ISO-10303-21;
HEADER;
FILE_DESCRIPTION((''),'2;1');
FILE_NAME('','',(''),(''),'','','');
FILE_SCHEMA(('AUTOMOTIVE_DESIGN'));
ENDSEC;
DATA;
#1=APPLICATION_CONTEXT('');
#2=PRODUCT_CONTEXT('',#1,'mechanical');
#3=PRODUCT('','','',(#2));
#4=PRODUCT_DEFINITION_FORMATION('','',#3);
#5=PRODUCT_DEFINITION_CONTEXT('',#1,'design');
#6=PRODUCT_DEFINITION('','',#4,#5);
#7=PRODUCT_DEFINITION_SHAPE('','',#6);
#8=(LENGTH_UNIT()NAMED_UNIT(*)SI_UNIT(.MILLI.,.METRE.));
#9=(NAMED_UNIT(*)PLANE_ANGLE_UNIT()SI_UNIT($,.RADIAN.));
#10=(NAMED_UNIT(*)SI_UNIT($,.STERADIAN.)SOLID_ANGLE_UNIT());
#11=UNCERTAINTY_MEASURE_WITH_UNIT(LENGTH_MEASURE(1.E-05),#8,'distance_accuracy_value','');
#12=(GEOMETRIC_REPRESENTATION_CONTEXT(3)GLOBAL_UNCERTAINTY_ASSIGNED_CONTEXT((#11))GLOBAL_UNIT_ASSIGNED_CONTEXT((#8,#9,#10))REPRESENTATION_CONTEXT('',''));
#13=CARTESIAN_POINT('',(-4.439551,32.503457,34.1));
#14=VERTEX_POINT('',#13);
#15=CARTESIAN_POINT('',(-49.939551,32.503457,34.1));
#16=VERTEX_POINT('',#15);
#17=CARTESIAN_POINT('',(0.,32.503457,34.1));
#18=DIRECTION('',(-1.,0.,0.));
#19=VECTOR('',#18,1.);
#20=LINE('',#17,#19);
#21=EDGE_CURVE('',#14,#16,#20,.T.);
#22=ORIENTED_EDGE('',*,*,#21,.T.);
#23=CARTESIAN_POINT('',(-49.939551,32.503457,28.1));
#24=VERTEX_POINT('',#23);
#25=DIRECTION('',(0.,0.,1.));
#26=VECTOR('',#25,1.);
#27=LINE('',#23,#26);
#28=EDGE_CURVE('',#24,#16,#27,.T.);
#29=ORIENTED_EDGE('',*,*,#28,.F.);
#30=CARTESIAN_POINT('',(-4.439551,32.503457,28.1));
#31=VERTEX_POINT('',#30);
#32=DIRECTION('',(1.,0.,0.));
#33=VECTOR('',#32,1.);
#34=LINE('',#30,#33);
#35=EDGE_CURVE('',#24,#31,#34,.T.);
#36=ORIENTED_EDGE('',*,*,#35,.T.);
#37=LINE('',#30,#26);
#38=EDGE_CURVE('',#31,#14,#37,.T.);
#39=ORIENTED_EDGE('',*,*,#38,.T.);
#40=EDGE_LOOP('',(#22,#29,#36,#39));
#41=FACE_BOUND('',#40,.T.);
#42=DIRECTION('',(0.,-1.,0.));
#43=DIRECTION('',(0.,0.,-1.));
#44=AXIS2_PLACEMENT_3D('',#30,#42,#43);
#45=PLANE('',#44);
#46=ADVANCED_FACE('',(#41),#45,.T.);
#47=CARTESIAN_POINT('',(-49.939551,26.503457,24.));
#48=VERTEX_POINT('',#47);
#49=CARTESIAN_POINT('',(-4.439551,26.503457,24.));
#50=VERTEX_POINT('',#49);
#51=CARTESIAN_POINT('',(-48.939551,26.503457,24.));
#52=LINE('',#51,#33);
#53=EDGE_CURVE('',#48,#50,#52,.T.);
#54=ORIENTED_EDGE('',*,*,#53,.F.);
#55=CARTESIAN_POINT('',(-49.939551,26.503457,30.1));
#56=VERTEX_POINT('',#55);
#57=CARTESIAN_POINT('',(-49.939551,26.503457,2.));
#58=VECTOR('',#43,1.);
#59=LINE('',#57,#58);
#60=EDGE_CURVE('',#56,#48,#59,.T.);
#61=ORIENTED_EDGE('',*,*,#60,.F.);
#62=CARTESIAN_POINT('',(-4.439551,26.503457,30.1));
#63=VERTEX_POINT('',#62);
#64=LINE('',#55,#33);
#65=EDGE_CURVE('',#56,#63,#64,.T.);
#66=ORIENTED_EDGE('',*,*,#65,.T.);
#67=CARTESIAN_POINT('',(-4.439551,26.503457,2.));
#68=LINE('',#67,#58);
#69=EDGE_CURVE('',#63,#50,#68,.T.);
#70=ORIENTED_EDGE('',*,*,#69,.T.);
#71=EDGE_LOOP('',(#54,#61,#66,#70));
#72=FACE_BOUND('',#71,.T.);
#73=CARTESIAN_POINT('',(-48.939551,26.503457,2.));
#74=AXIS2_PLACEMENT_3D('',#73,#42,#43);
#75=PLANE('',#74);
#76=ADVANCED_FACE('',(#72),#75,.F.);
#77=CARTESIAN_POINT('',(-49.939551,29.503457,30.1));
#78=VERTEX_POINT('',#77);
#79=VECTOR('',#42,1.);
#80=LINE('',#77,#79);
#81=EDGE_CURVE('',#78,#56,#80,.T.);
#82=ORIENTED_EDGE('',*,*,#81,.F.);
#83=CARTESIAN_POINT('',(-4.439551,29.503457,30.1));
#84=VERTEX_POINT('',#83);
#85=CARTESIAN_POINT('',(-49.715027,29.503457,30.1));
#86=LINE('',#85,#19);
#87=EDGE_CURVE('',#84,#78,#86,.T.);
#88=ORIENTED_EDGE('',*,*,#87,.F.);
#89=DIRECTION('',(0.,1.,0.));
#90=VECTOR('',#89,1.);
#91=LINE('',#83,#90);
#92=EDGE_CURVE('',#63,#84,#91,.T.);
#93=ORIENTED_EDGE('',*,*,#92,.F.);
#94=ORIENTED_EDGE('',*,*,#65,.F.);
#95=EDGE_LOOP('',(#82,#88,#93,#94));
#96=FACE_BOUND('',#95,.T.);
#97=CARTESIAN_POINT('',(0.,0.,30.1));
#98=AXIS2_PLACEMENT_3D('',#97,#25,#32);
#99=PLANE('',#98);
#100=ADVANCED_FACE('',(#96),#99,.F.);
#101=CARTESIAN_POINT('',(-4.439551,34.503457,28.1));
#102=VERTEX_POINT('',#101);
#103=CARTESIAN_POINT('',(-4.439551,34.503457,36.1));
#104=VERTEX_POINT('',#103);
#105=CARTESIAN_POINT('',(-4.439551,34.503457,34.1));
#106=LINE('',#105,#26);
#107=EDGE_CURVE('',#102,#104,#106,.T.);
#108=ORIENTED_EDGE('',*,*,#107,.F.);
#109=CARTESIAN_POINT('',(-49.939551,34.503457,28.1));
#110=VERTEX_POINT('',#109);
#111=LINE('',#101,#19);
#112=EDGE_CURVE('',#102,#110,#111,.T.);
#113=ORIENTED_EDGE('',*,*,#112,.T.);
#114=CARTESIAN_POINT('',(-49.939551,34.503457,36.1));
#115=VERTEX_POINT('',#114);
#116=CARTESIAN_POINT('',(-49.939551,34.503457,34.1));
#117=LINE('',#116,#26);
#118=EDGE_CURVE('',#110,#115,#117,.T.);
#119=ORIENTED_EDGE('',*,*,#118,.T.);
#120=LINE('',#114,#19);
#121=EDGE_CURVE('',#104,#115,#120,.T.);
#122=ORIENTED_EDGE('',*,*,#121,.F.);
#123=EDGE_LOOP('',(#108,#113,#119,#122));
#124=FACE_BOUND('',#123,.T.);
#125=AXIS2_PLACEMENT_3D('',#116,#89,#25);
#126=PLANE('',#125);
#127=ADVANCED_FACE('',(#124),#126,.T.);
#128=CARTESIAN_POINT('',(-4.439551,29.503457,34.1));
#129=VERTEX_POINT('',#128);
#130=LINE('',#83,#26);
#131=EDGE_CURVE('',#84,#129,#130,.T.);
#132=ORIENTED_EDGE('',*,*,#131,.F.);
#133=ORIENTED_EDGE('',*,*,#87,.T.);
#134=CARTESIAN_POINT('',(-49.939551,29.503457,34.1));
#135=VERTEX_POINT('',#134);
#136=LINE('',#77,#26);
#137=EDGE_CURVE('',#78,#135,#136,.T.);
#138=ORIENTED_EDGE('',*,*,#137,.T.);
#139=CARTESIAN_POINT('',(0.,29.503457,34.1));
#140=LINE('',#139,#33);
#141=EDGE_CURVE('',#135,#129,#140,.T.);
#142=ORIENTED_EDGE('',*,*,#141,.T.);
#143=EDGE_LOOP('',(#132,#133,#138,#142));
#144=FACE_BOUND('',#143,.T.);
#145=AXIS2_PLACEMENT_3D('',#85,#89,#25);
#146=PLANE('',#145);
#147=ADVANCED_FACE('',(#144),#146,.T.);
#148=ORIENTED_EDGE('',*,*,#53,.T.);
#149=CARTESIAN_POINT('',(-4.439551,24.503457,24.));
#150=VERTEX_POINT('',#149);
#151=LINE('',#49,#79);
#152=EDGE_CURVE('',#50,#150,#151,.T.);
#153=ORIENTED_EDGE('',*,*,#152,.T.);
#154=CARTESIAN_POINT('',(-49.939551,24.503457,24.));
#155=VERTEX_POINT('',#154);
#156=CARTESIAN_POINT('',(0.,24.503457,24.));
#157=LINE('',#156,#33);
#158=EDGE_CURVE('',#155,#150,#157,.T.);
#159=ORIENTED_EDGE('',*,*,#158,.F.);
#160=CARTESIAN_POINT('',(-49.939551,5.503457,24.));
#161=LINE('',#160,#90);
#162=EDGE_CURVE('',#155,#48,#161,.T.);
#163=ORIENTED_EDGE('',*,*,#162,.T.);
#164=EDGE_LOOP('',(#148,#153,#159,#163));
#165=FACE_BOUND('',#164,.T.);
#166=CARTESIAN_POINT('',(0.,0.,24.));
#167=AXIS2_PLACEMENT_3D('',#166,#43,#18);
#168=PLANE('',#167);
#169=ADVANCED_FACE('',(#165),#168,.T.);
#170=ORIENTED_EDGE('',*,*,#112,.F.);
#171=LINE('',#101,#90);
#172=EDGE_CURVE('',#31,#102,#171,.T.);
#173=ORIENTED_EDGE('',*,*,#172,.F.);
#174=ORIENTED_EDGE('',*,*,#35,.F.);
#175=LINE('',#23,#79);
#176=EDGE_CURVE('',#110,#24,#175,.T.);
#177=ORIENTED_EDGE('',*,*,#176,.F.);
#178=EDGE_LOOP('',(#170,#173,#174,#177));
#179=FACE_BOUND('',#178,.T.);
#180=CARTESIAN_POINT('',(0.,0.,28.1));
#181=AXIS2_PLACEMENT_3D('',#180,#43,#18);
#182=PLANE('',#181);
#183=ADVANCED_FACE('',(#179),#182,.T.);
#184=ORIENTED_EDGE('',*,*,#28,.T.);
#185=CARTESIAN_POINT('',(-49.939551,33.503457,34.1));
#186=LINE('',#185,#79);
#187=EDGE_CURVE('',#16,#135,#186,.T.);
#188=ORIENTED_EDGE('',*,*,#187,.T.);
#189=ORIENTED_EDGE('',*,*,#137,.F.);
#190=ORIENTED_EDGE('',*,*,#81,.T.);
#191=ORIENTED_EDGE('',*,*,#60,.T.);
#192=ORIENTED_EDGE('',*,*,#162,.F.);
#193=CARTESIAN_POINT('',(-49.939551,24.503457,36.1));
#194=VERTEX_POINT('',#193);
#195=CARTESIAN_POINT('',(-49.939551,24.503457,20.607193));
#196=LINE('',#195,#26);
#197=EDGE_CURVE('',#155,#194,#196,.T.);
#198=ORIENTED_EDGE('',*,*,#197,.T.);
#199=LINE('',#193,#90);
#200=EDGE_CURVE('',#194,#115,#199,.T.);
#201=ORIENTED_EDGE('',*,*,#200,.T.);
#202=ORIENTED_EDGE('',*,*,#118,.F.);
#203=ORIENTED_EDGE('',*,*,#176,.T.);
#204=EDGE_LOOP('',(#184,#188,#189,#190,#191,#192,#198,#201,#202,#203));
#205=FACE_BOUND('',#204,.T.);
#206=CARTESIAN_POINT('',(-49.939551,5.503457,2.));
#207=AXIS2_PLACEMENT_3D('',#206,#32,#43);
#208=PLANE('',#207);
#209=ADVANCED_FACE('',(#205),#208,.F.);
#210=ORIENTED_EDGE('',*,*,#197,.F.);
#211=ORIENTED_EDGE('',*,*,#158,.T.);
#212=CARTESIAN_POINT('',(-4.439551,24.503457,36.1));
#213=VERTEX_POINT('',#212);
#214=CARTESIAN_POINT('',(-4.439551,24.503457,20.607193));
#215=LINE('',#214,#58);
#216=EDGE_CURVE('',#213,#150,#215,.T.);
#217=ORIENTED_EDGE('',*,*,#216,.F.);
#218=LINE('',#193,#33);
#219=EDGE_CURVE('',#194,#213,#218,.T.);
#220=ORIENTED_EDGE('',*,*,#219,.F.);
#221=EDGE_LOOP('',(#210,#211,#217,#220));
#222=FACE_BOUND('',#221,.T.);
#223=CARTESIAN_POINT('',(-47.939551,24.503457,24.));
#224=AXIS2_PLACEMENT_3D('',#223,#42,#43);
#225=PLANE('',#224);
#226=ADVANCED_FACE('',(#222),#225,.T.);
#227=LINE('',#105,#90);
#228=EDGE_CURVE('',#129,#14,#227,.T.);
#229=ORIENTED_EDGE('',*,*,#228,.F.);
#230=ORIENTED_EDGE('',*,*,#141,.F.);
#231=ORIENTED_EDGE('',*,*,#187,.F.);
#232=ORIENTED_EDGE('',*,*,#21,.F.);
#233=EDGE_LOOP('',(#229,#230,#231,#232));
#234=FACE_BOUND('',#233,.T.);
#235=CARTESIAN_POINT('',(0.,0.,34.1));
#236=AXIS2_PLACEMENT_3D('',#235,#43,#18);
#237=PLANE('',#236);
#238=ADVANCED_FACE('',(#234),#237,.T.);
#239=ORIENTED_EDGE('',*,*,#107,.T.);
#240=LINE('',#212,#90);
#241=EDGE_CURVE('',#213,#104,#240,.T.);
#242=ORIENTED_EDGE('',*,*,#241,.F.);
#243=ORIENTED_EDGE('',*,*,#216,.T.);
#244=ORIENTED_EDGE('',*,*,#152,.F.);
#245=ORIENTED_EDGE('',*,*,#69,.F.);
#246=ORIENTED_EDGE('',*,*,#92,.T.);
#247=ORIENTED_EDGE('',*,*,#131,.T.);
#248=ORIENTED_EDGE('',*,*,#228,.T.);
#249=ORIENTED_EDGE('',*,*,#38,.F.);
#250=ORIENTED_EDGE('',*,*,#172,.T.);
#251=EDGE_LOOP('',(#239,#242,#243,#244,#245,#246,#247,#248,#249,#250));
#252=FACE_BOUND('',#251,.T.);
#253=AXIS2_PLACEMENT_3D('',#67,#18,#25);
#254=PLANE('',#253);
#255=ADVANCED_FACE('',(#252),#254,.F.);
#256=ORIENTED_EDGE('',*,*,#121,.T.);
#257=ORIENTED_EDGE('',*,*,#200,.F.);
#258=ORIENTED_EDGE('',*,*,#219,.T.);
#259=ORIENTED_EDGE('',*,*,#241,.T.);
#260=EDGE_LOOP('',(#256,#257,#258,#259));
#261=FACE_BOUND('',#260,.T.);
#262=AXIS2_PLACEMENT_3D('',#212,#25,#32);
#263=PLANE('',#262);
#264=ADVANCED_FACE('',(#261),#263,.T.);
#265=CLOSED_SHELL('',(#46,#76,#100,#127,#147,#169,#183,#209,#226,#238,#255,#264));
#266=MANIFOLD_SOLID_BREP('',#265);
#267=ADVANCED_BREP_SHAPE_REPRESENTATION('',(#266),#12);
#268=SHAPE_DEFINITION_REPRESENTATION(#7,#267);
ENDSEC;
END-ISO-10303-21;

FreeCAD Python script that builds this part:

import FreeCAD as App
import Part
import Sketcher


def add_polygon(sketch, points):
    """Adds a closed chain of lines whose ends are joined by coincident constraints."""
    first, n = sketch.GeometryCount, len(points)
    for a, b in zip(points, points[1:] + points[:1]):
        sketch.addGeometry(Part.LineSegment(App.Vector(*a, 0), App.Vector(*b, 0)), False)
    for i in range(n):
        sketch.addConstraint(Sketcher.Constraint("Coincident", first + i, 2, first + (i + 1) % n, 1))

doc = App.newDocument("Part")
body = doc.addObject("PartDesign::Body", "Body")

# Sketch on XY plane
sketch1 = doc.addObject("Sketcher::SketchObject", "Sketch")
body.addObject(sketch1)
sketch1.AttachmentSupport = (doc.XY_Plane, [""])
sketch1.MapMode = "FlatFace"
add_polygon(sketch1, [(-4, 27), (-50, 27), (-50, 2), (-4, 2)])  # lines 0-3
sketch1.addConstraint(Sketcher.Constraint("Horizontal", 0))
sketch1.addConstraint(Sketcher.Constraint("Vertical", 1))
sketch1.addConstraint(Sketcher.Constraint("Horizontal", 2))
sketch1.addConstraint(Sketcher.Constraint("Vertical", 3))
sketch1.addConstraint(Sketcher.Constraint("DistanceY", 1, 2, 1, 1, 25.0))
sketch1.addConstraint(Sketcher.Constraint("DistanceX", 0, 2, 0, 1, 45.5))
sketch1.addConstraint(Sketcher.Constraint("DistanceX", 0, 2, -1, 1, 49.939551))
sketch1.addConstraint(Sketcher.Constraint("DistanceY", -1, 1, 0, 2, 26.503457))
pad1 = doc.addObject("PartDesign::Pad", "Pad")
body.addObject(pad1)
pad1.Profile = sketch1
pad1.Length = 2

# Sketch on XY plane
sketch2 = doc.addObject("Sketcher::SketchObject", "Sketch001")
body.addObject(sketch2)
sketch2.AttachmentSupport = (doc.XY_Plane, [""])
sketch2.MapMode = "FlatFace"
add_polygon(sketch2, [(-4, 27), (-50, 27), (-50, 2), (-4, 2)])  # lines 0-3
add_polygon(sketch2, [(-48, 4), (-48, 25), (-6, 25), (-6, 4)])  # lines 4-7
sketch2.addConstraint(Sketcher.Constraint("Horizontal", 0))
sketch2.addConstraint(Sketcher.Constraint("Vertical", 1))
sketch2.addConstraint(Sketcher.Constraint("Horizontal", 2))
sketch2.addConstraint(Sketcher.Constraint("Vertical", 3))
sketch2.addConstraint(Sketcher.Constraint("Vertical", 4))
sketch2.addConstraint(Sketcher.Constraint("Horizontal", 5))
sketch2.addConstraint(Sketcher.Constraint("Vertical", 6))
sketch2.addConstraint(Sketcher.Constraint("Horizontal", 7))
sketch2.addConstraint(Sketcher.Constraint("DistanceY", 1, 2, 1, 1, 25.0))
sketch2.addConstraint(Sketcher.Constraint("DistanceY", 4, 1, 4, 2, 21.0))
sketch2.addConstraint(Sketcher.Constraint("DistanceX", 0, 2, 0, 1, 45.5))
sketch2.addConstraint(Sketcher.Constraint("DistanceX", 5, 1, 5, 2, 41.5))
sketch2.addConstraint(Sketcher.Constraint("DistanceX", 0, 2, 4, 2, 2.0))
sketch2.addConstraint(Sketcher.Constraint("DistanceY", 4, 2, 0, 2, 2.0))
sketch2.addConstraint(Sketcher.Constraint("DistanceX", 0, 2, -1, 1, 49.939551))
sketch2.addConstraint(Sketcher.Constraint("DistanceY", -1, 1, 0, 2, 26.503457))
pad2 = doc.addObject("PartDesign::Pad", "Pad001")
body.addObject(pad2)
pad2.Profile = sketch2
pad2.Length = 24

# Sketch on YZ plane
sketch3 = doc.addObject("Sketcher::SketchObject", "Sketch002")
body.addObject(sketch3)
sketch3.AttachmentSupport = (doc.YZ_Plane, [""])
sketch3.MapMode = "FlatFace"
add_polygon(sketch3, [(22, 29), (5, 29), (5, 2), (22, 2)])  # lines 0-3
sketch3.addConstraint(Sketcher.Constraint("Horizontal", 0))
sketch3.addConstraint(Sketcher.Constraint("Vertical", 1))
sketch3.addConstraint(Sketcher.Constraint("Horizontal", 2))
sketch3.addConstraint(Sketcher.Constraint("Vertical", 3))
sketch3.addConstraint(Sketcher.Constraint("DistanceY", -1, 1, 1, 2, 2.0))
sketch3.addConstraint(Sketcher.Constraint("DistanceX", 0, 2, 0, 1, 17.040829))
sketch3.addConstraint(Sketcher.Constraint("DistanceY", 1, 2, 1, 1, 26.838471))
sketch3.addConstraint(Sketcher.Constraint("DistanceX", -1, 1, 0, 2, 5.407665))
pocket1 = doc.addObject("PartDesign::Pocket", "Pocket")
body.addObject(pocket1)
pocket1.Profile = sketch3
pocket1.Length = 70.1

# Sketch on XZ plane
sketch4 = doc.addObject("Sketcher::SketchObject", "Sketch003")
body.addObject(sketch4)
sketch4.AttachmentSupport = (doc.XZ_Plane, [""])
sketch4.MapMode = "FlatFace"
sketch4.AttachmentOffset = App.Placement(App.Vector(0, 0, -26.503457), App.Rotation())
add_polygon(sketch4, [(-4, 21), (-50, 21), (-50, 36), (-4, 36)])  # lines 0-3
sketch4.addConstraint(Sketcher.Constraint("Horizontal", 0))
sketch4.addConstraint(Sketcher.Constraint("Vertical", 1))
sketch4.addConstraint(Sketcher.Constraint("Horizontal", 2))
sketch4.addConstraint(Sketcher.Constraint("Vertical", 3))
sketch4.addConstraint(Sketcher.Constraint("DistanceX", 0, 2, 0, 1, 45.5))
sketch4.addConstraint(Sketcher.Constraint("DistanceY", -1, 1, 1, 2, 36.1))
sketch4.addConstraint(Sketcher.Constraint("DistanceY", 1, 1, 1, 2, 15.492807))
sketch4.addConstraint(Sketcher.Constraint("DistanceX", 0, 2, -1, 1, 49.939551))
pad3 = doc.addObject("PartDesign::Pad", "Pad002")
body.addObject(pad3)
pad3.Profile = sketch4
pad3.Length = 2

# Sketch on XY plane
sketch5 = doc.addObject("Sketcher::SketchObject", "Sketch004")
body.addObject(sketch5)
sketch5.AttachmentSupport = (doc.XY_Plane, [""])
sketch5.MapMode = "FlatFace"
sketch5.AttachmentOffset = App.Placement(App.Vector(0, 0, 36.1), App.Rotation())
add_polygon(sketch5, [(-50, 25), (-4, 25), (-4, 35), (-50, 35)])  # lines 0-3
sketch5.addConstraint(Sketcher.Constraint("Horizontal", 0))
sketch5.addConstraint(Sketcher.Constraint("Vertical", 1))
sketch5.addConstraint(Sketcher.Constraint("Horizontal", 2))
sketch5.addConstraint(Sketcher.Constraint("Vertical", 3))
sketch5.addConstraint(Sketcher.Constraint("DistanceY", 1, 1, 1, 2, 10.0))
sketch5.addConstraint(Sketcher.Constraint("DistanceX", 0, 1, 0, 2, 45.5))
sketch5.addConstraint(Sketcher.Constraint("DistanceX", 0, 2, -1, 1, 4.439551))
sketch5.addConstraint(Sketcher.Constraint("DistanceY", -1, 1, 0, 2, 24.503457))
pad4 = doc.addObject("PartDesign::Pad", "Pad003")
body.addObject(pad4)
pad4.Profile = sketch5
pad4.Length = 2
pad4.Reversed = True

# Sketch on XY plane
sketch6 = doc.addObject("Sketcher::SketchObject", "Sketch005")
body.addObject(sketch6)
sketch6.AttachmentSupport = (doc.XY_Plane, [""])
sketch6.MapMode = "FlatFace"
sketch6.AttachmentOffset = App.Placement(App.Vector(0, 0, 36.1), App.Rotation())
add_polygon(sketch6, [(-49.9, 34.5), (-49.9, 32.5), (-4.4, 32.5), (-4.4, 34.5)])  # lines 0-3
sketch6.addConstraint(Sketcher.Constraint("Vertical", 0))
sketch6.addConstraint(Sketcher.Constraint("Horizontal", 1))
sketch6.addConstraint(Sketcher.Constraint("Vertical", 2))
sketch6.addConstraint(Sketcher.Constraint("Horizontal", 3))
sketch6.addConstraint(Sketcher.Constraint("DistanceY", 0, 2, 0, 1, 2.0))
sketch6.addConstraint(Sketcher.Constraint("DistanceX", 1, 1, 1, 2, 45.5))
sketch6.addConstraint(Sketcher.Constraint("DistanceX", 0, 2, -1, 1, 49.939551))
sketch6.addConstraint(Sketcher.Constraint("DistanceY", -1, 1, 0, 2, 32.503457))
pad5 = doc.addObject("PartDesign::Pad", "Pad004")
body.addObject(pad5)
pad5.Profile = sketch6
pad5.Length = 8
pad5.Reversed = True

# Sketch on XY plane
sketch7 = doc.addObject("Sketcher::SketchObject", "Sketch006")
body.addObject(sketch7)
sketch7.AttachmentSupport = (doc.XY_Plane, [""])
sketch7.MapMode = "FlatFace"
sketch7.AttachmentOffset = App.Placement(App.Vector(0, 0, 36.1), App.Rotation())
add_polygon(sketch7, [(-49.9, 29.5), (-49.9, 26.5), (-4.4, 26.5), (-4.4, 29.5)])  # lines 0-3
sketch7.addConstraint(Sketcher.Constraint("Vertical", 0))
sketch7.addConstraint(Sketcher.Constraint("Horizontal", 1))
sketch7.addConstraint(Sketcher.Constraint("Vertical", 2))
sketch7.addConstraint(Sketcher.Constraint("Horizontal", 3))
sketch7.addConstraint(Sketcher.Constraint("DistanceY", 0, 2, 0, 1, 3.0))
sketch7.addConstraint(Sketcher.Constraint("DistanceX", 1, 1, 1, 2, 45.5))
sketch7.addConstraint(Sketcher.Constraint("DistanceX", 0, 2, -1, 1, 49.939551))
sketch7.addConstraint(Sketcher.Constraint("DistanceY", -1, 1, 0, 2, 26.503457))
pad6 = doc.addObject("PartDesign::Pad", "Pad005")
body.addObject(pad6)
pad6.Profile = sketch7
pad6.Length = 6
pad6.Reversed = True

# Sketch on XY plane
sketch8 = doc.addObject("Sketcher::SketchObject", "Sketch007")
body.addObject(sketch8)
sketch8.AttachmentSupport = (doc.XY_Plane, [""])
sketch8.MapMode = "FlatFace"
sketch8.AttachmentOffset = App.Placement(App.Vector(0, 0, 24), App.Rotation())
add_polygon(sketch8, [(-64, 53), (-64, -6), (13, -6), (13, 53)])  # lines 0-3
sketch8.addConstraint(Sketcher.Constraint("Vertical", 0))
sketch8.addConstraint(Sketcher.Constraint("Horizontal", 1))
sketch8.addConstraint(Sketcher.Constraint("Vertical", 2))
sketch8.addConstraint(Sketcher.Constraint("Horizontal", 3))
sketch8.addConstraint(Sketcher.Constraint("DistanceX", 1, 1, 1, 2, 76.96238))
sketch8.addConstraint(Sketcher.Constraint("DistanceY", 0, 2, 0, 1, 58.957858))
sketch8.addConstraint(Sketcher.Constraint("DistanceX", -1, 1, 1, 2, 13.093499))
sketch8.addConstraint(Sketcher.Constraint("DistanceY", -1, 1, 2, 2, 53.342621))
pocket2 = doc.addObject("PartDesign::Pocket", "Pocket001")
body.addObject(pocket2)
pocket2.Profile = sketch8
pocket2.Length = 39

doc.recompute()
